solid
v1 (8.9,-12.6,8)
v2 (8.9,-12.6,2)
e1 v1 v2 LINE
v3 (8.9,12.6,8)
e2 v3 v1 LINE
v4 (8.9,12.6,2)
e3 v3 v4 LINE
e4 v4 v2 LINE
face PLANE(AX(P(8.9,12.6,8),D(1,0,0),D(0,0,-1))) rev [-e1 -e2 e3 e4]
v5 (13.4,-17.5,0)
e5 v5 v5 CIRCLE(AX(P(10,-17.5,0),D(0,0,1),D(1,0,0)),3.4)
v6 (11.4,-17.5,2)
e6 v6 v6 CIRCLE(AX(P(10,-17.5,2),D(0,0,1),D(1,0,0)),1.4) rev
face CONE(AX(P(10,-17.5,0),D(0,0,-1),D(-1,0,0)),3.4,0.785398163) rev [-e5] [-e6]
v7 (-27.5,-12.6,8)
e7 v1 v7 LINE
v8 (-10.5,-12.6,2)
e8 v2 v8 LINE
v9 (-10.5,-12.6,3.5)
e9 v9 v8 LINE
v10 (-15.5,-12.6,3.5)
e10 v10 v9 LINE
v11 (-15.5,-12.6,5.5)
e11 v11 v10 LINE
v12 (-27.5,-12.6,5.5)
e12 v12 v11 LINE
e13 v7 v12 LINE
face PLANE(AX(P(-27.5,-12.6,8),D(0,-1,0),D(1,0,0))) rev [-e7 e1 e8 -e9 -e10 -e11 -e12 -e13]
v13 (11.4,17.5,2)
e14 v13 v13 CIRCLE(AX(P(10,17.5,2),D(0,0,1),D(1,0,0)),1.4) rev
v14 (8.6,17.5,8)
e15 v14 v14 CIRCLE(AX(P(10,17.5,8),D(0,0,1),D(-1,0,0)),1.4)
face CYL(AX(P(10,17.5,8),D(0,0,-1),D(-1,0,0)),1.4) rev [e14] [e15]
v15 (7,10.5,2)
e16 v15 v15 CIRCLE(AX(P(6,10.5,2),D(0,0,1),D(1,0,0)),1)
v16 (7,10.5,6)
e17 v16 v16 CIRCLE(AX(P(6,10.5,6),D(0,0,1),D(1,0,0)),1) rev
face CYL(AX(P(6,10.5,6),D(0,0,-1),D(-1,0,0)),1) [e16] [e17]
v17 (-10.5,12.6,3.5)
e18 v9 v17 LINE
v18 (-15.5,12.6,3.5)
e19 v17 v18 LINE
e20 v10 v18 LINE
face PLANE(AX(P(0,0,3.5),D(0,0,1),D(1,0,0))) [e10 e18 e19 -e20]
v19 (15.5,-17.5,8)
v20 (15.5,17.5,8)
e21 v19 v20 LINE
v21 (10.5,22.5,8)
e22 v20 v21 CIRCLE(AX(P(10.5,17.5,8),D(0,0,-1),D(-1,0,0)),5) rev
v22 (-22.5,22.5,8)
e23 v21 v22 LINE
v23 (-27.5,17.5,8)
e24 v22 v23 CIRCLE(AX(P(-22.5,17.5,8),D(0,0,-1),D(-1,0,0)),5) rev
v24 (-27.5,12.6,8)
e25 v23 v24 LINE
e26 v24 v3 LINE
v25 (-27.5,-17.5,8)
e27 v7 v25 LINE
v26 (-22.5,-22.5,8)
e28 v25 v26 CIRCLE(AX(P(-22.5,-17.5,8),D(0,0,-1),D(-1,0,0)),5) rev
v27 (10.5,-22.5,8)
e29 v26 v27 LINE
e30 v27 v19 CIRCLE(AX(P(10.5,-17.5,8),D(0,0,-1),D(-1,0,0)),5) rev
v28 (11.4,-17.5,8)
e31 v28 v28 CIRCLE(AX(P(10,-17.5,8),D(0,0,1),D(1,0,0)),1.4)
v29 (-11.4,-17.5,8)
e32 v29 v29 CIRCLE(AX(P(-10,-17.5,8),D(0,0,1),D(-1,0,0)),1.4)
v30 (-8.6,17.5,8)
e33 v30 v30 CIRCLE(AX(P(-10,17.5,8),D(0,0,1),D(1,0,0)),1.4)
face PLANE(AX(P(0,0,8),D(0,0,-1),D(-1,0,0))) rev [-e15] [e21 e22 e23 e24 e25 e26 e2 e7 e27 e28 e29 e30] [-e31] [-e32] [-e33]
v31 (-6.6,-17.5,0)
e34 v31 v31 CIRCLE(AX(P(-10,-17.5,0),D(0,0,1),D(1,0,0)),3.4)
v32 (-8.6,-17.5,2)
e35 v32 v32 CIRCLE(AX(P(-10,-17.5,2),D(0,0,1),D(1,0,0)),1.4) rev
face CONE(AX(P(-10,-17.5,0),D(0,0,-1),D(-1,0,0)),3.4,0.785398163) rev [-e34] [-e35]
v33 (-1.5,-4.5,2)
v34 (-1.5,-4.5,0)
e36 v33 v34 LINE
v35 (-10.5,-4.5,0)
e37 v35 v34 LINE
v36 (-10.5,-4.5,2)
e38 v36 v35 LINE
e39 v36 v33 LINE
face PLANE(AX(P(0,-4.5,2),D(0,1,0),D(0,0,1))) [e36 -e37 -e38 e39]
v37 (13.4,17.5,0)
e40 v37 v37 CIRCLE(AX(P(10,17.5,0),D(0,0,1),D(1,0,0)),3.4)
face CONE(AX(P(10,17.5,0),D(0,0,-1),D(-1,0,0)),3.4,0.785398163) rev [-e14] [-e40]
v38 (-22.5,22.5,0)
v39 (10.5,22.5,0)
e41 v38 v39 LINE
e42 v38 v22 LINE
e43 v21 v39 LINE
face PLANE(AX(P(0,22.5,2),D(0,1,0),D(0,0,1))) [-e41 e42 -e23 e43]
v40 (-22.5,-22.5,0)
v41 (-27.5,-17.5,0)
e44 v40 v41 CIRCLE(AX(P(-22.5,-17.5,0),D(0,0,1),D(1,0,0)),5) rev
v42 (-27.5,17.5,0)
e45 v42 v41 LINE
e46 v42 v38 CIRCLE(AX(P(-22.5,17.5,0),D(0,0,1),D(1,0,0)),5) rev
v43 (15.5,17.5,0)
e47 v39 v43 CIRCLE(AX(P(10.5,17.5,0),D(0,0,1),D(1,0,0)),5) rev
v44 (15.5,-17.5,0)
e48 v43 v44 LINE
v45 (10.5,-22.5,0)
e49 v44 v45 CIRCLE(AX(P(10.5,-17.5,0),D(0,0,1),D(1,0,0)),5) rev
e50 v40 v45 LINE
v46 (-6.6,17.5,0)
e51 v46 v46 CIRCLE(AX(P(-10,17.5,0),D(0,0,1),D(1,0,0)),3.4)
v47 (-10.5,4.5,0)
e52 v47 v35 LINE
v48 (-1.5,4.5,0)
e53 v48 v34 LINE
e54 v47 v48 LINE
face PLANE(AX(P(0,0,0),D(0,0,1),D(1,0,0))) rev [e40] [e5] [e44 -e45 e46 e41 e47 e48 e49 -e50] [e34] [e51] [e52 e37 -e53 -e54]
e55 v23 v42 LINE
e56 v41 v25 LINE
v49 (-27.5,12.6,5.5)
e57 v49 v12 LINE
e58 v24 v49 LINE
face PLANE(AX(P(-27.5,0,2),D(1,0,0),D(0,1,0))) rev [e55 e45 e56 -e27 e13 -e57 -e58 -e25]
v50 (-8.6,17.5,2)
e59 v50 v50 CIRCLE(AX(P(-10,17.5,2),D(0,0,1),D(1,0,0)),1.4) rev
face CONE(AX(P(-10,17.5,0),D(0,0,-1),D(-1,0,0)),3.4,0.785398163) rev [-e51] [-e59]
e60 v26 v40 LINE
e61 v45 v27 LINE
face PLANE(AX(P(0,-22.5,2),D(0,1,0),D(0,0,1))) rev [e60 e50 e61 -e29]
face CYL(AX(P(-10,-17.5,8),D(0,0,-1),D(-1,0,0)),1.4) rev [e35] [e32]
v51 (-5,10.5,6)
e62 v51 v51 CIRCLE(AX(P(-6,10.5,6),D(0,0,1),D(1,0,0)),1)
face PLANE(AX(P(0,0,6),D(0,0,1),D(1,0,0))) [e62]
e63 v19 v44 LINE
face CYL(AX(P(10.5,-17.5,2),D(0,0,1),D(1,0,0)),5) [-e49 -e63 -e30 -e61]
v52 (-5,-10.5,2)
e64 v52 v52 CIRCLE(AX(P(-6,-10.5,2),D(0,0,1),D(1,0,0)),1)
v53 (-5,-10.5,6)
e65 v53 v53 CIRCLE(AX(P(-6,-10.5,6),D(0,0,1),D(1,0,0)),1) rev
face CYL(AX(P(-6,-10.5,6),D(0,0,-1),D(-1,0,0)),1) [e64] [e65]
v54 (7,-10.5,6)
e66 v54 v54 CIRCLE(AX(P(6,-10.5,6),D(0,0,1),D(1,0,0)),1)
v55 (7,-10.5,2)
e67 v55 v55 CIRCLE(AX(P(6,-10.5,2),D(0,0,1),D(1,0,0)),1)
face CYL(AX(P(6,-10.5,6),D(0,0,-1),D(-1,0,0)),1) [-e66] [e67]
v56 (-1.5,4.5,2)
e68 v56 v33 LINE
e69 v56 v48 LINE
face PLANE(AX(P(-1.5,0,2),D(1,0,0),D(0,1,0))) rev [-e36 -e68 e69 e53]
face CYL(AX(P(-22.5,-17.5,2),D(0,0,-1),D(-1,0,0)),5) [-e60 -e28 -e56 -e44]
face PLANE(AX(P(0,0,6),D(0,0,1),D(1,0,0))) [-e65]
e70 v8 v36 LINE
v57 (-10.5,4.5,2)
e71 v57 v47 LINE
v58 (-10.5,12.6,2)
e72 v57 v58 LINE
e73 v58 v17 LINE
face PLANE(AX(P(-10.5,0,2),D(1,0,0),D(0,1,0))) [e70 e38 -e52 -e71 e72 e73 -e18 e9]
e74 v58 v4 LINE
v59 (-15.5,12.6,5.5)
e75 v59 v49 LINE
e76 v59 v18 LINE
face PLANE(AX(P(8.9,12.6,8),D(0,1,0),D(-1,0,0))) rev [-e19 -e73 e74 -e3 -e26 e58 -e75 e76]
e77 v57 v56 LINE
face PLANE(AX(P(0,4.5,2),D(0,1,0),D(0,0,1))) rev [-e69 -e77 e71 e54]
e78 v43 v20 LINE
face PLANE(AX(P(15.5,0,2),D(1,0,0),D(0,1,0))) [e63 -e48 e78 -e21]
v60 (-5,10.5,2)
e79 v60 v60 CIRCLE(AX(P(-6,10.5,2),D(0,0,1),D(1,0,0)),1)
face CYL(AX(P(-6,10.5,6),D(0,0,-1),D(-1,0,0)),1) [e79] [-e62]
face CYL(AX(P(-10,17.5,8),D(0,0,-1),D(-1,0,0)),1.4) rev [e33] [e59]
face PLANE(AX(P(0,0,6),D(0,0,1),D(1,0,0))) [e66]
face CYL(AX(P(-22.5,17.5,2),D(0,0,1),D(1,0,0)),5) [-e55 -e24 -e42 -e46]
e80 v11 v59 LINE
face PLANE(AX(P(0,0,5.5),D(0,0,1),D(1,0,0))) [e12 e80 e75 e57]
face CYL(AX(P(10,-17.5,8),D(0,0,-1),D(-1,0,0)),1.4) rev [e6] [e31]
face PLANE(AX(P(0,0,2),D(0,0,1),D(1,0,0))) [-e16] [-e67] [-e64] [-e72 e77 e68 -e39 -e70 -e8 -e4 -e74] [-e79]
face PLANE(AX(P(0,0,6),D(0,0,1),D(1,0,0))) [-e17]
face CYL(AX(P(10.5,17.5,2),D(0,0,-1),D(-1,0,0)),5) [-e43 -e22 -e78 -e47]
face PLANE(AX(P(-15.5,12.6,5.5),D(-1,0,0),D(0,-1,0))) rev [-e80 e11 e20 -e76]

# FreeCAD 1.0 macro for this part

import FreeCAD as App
import Part
import Sketcher

V = App.Vector
Q = App.Units.Quantity


def edges_at(feature, points):
    """Names of the edges that pass closest to the given points."""
    edges = feature.Shape.Edges
    near = lambda p: min(range(len(edges)), key=lambda i: edges[i].distToShape(Part.Vertex(*p))[0])
    return sorted({f"Edge{near(p) + 1}" for p in points})

doc = App.newDocument("Part")
params = doc.addObject("Spreadsheet::Sheet", "Params")
for row, (alias, value) in enumerate([
    ("sketch1_diameter", "2 mm"),
    ("sketch1_width", "43 mm"),
    ("sketch1_width2", "9 mm"),
    ("sketch1_height", "45 mm"),
    ("pad1_length", "2 mm"),
    ("sketch2_width", "17 mm"),
    ("sketch2_height", "45 mm"),
    ("pad2_length", "1.5 mm"),
    ("sketch3_width", "43 mm"),
    ("sketch3_height", "45 mm"),
    ("sketch3_width2", "36.4 mm"),
    ("sketch3_height2", "9.9 mm"),
    ("pad3_length", "6 mm"),
    ("sketch4_diameter", "2 mm"),
    ("pad4_length", "6 mm"),
    ("sketch5_diameter", "2.8 mm"),
    ("chamfer_size", "2 mm"),
    ("sketch6_width", "12 mm"),
    ("sketch6_height", "25.2 mm"),
    ("pad5_length", "2 mm"),
    ("fillet_radius", "5 mm"),
], start=1):
    params.set(f"A{row}", alias)
    params.set(f"B{row}", "=" + value)
    params.setAlias(f"B{row}", alias)

body = doc.addObject("PartDesign::Body", "Body")

sketch1 = body.newObject("Sketcher::SketchObject", "Sketch")
sketch1.AttachmentSupport = (doc.getObject("XY_Plane"), [""])
sketch1.MapMode = "FlatFace"
sketch1.addGeometry([
    Part.LineSegment(V(-27.5, 22.5, 0), V(-27.5, -22.5, 0)),
    Part.LineSegment(V(-27.5, -22.5, 0), V(15.5, -22.5, 0)),
    Part.LineSegment(V(15.5, -22.5, 0), V(15.5, 22.5, 0)),
    Part.LineSegment(V(15.5, 22.5, 0), V(-27.5, 22.5, 0)),
    Part.Circle(V(-6, -10.5, 0), V(0, 0, 1), 1),
    Part.Circle(V(6, -10.5, 0), V(0, 0, 1), 1),
    Part.LineSegment(V(-1.5, -4.5, 0), V(-10.5, -4.5, 0)),
    Part.LineSegment(V(-10.5, -4.5, 0), V(-10.5, 4.5, 0)),
    Part.LineSegment(V(-10.5, 4.5, 0), V(-1.5, 4.5, 0)),
    Part.LineSegment(V(-1.5, 4.5, 0), V(-1.5, -4.5, 0)),
    Part.Circle(V(-6, 10.5, 0), V(0, 0, 1), 1),
    Part.Circle(V(6, 10.5, 0), V(0, 0, 1), 1),
], False)
sketch1.addConstraint([
    Sketcher.Constraint("Coincident", 0, 2, 1, 1),
    Sketcher.Constraint("Coincident", 1, 2, 2, 1),
    Sketcher.Constraint("Coincident", 2, 2, 3, 1),
    Sketcher.Constraint("Coincident", 3, 2, 0, 1),
    Sketcher.Constraint("Coincident", 6, 2, 7, 1),
    Sketcher.Constraint("Coincident", 7, 2, 8, 1),
    Sketcher.Constraint("Coincident", 8, 2, 9, 1),
    Sketcher.Constraint("Coincident", 9, 2, 6, 1),
    Sketcher.Constraint("Vertical", 0),
    Sketcher.Constraint("Horizontal", 1),
    Sketcher.Constraint("Vertical", 2),
    Sketcher.Constraint("Horizontal", 3),
    Sketcher.Constraint("Horizontal", 6),
    Sketcher.Constraint("Vertical", 7),
    Sketcher.Constraint("Horizontal", 8),
    Sketcher.Constraint("Vertical", 9),
    Sketcher.Constraint("Equal", 4, 5),
    Sketcher.Constraint("Equal", 5, 10),
    Sketcher.Constraint("Equal", 10, 11),
    Sketcher.Constraint("Symmetric", 5, 3, 10, 3, -1, 1),
    Sketcher.Constraint("Symmetric", 4, 3, 11, 3, -1, 1),
    Sketcher.Constraint("Symmetric", 4, 3, 5, 3, -2),
    Sketcher.Constraint("Equal", 8, 7),
    Sketcher.Constraint("Diameter", 4, Q("2 mm")),
    Sketcher.Constraint("DistanceX", 1, 1, 1, 2, Q("43 mm")),
    Sketcher.Constraint("DistanceX", 6, 2, 6, 1, Q("9 mm")),
    Sketcher.Constraint("DistanceY", 0, 2, 0, 1, Q("45 mm")),
    Sketcher.Constraint("DistanceX", 4, 3, -1, 1, Q("6 mm")),
    Sketcher.Constraint("DistanceY", 4, 3, 10, 3, Q("21 mm")),
    Sketcher.Constraint("DistanceY", 0, 2, 4, 3, Q("12 mm")),
    Sketcher.Constraint("DistanceY", 4, 3, 6, 2, Q("6 mm")),
    Sketcher.Constraint("DistanceX", 0, 2, 6, 2, Q("17 mm")),
    Sketcher.Constraint("DistanceX", 0, 2, -1, 1, Q("27.5 mm")),
])
sketch1.setExpression("Constraints[23]", "Params.sketch1_diameter")
sketch1.setExpression("Constraints[24]", "Params.sketch1_width")
sketch1.setExpression("Constraints[25]", "Params.sketch1_width2")
sketch1.setExpression("Constraints[26]", "Params.sketch1_height")
pad1 = body.newObject("PartDesign::Pad", "Pad")
pad1.Profile = sketch1
pad1.setExpression("Length", "Params.pad1_length")

sketch2 = body.newObject("Sketcher::SketchObject", "Sketch001")
sketch2.AttachmentSupport = (doc.getObject("XY_Plane"), [""])
sketch2.MapMode = "FlatFace"
sketch2.AttachmentOffset = App.Placement(V(0, 0, 2), App.Rotation())
sketch2.addGeometry([
    Part.LineSegment(V(-28, 22, 0), V(-28, -22, 0)),
    Part.LineSegment(V(-28, -22, 0), V(-10, -22, 0)),
    Part.LineSegment(V(-10, -22, 0), V(-10, 22, 0)),
    Part.LineSegment(V(-10, 22, 0), V(-28, 22, 0)),
], False)
sketch2.addConstraint([
    Sketcher.Constraint("Coincident", 0, 2, 1, 1),
    Sketcher.Constraint("Coincident", 1, 2, 2, 1),
    Sketcher.Constraint("Coincident", 2, 2, 3, 1),
    Sketcher.Constraint("Coincident", 3, 2, 0, 1),
    Sketcher.Constraint("Vertical", 0),
    Sketcher.Constraint("Horizontal", 1),
    Sketcher.Constraint("Vertical", 2),
    Sketcher.Constraint("Horizontal", 3),
    Sketcher.Constraint("DistanceX", 1, 1, 1, 2, Q("17 mm")),
    Sketcher.Constraint("DistanceY", 0, 2, 0, 1, Q("45 mm")),
    Sketcher.Constraint("DistanceX", 0, 2, -1, 1, Q("27.5 mm")),
    Sketcher.Constraint("DistanceY", 0, 2, -1, 1, Q("22.5 mm")),
])
sketch2.setExpression("Constraints[8]", "Params.sketch2_width")
sketch2.setExpression("Constraints[9]", "Params.sketch2_height")
pad2 = body.newObject("PartDesign::Pad", "Pad001")
pad2.Profile = sketch2
pad2.setExpression("Length", "Params.pad2_length")

sketch3 = body.newObject("Sketcher::SketchObject", "Sketch002")
sketch3.AttachmentSupport = (doc.getObject("XY_Plane"), [""])
sketch3.MapMode = "FlatFace"
sketch3.AttachmentOffset = App.Placement(V(0, 0, 2), App.Rotation())
sketch3.addGeometry([
    Part.LineSegment(V(16, -22, 0), V(16, 22, 0)),
    Part.LineSegment(V(16, 22, 0), V(-28, 22, 0)),
    Part.LineSegment(V(-28, 22, 0), V(-28, 13, 0)),
    Part.LineSegment(V(-28, 13, 0), V(9, 13, 0)),
    Part.LineSegment(V(9, 13, 0), V(9, -13, 0)),
    Part.LineSegment(V(9, -13, 0), V(-28, -13, 0)),
    Part.LineSegment(V(-28, -13, 0), V(-28, -22, 0)),
    Part.LineSegment(V(-28, -22, 0), V(16, -22, 0)),
], False)
sketch3.addConstraint([
    Sketcher.Constraint("Coincident", 0, 2, 1, 1),
    Sketcher.Constraint("Coincident", 1, 2, 2, 1),
    Sketcher.Constraint("Coincident", 2, 2, 3, 1),
    Sketcher.Constraint("Coincident", 3, 2, 4, 1),
    Sketcher.Constraint("Coincident", 4, 2, 5, 1),
    Sketcher.Constraint("Coincident", 5, 2, 6, 1),
    Sketcher.Constraint("Coincident", 6, 2, 7, 1),
    Sketcher.Constraint("Coincident", 7, 2, 0, 1),
    Sketcher.Constraint("Vertical", 0),
    Sketcher.Constraint("Horizontal", 1),
    Sketcher.Constraint("Vertical", 2),
    Sketcher.Constraint("Horizontal", 3),
    Sketcher.Constraint("Vertical", 4),
    Sketcher.Constraint("Horizontal", 5),
    Sketcher.Constraint("Vertical", 6),
    Sketcher.Constraint("Horizontal", 7),
    Sketcher.Constraint("Symmetric", 2, 2, 5, 2, -1),
    Sketcher.Constraint("Equal", 2, 6),
    Sketcher.Constraint("DistanceX", 1, 2, 1, 1, Q("43 mm")),
    Sketcher.Constraint("DistanceY", 0, 1, 0, 2, Q("45 mm")),
    Sketcher.Constraint("DistanceX", 3, 1, 3, 2, Q("36.4 mm")),
    Sketcher.Constraint("DistanceY", 2, 2, 2, 1, Q("9.9 mm")),
    Sketcher.Constraint("DistanceX", -1, 1, 0, 2, Q("15.5 mm")),
])
sketch3.setExpression("Constraints[18]", "Params.sketch3_width")
sketch3.setExpression("Constraints[19]", "Params.sketch3_height")
sketch3.setExpression("Constraints[20]", "Params.sketch3_width2")
sketch3.setExpression("Constraints[21]", "Params.sketch3_height2")
pad3 = body.newObject("PartDesign::Pad", "Pad002")
pad3.Profile = sketch3
pad3.setExpression("Length", "Params.pad3_length")

sketch4 = body.newObject("Sketcher::SketchObject", "Sketch003")
sketch4.AttachmentSupport = (doc.getObject("XY_Plane"), [""])
sketch4.MapMode = "FlatFace"
sketch4.addGeometry([
    Part.Circle(V(-6, 10.5, 0), V(0, 0, 1), 1),
    Part.Circle(V(6, 10.5, 0), V(0, 0, 1), 1),
    Part.Circle(V(-6, -10.5, 0), V(0, 0, 1), 1),
    Part.Circle(V(6, -10.5, 0), V(0, 0, 1), 1),
], False)
sketch4.addConstraint([
    Sketcher.Constraint("Equal", 0, 1),
    Sketcher.Constraint("Equal", 1, 2),
    Sketcher.Constraint("Equal", 2, 3),
    Sketcher.Constraint("Symmetric", 1, 3, 2, 3, -1, 1),
    Sketcher.Constraint("Symmetric", 0, 3, 3, 3, -1, 1),
    Sketcher.Constraint("Symmetric", 0, 3, 1, 3, -2),
    Sketcher.Constraint("Diameter", 0, Q("2 mm")),
    Sketcher.Constraint("DistanceX", 0, 3, -1, 1, Q("6 mm")),
    Sketcher.Constraint("DistanceY", 2, 3, 0, 3, Q("21 mm")),
])
sketch4.setExpression("Constraints[6]", "Params.sketch4_diameter")
pad4 = body.newObject("PartDesign::Pad", "Pad003")
pad4.Profile = sketch4
pad4.setExpression("Length", "Params.pad4_length")

sketch5 = body.newObject("Sketcher::SketchObject", "Sketch004")
sketch5.AttachmentSupport = (doc.getObject("XY_Plane"), [""])
sketch5.MapMode = "FlatFace"
sketch5.addGeometry([
    Part.Circle(V(-10, 17.5, 0), V(0, 0, 1), 1.4),
    Part.Circle(V(10, 17.5, 0), V(0, 0, 1), 1.4),
    Part.Circle(V(10, -17.5, 0), V(0, 0, 1), 1.4),
    Part.Circle(V(-10, -17.5, 0), V(0, 0, 1), 1.4),
], False)
sketch5.addConstraint([
    Sketcher.Constraint("Equal", 0, 1),
    Sketcher.Constraint("Equal", 1, 2),
    Sketcher.Constraint("Equal", 2, 3),
    Sketcher.Constraint("Symmetric", 0, 3, 2, 3, -1, 1),
    Sketcher.Constraint("Symmetric", 1, 3, 3, 3, -1, 1),
    Sketcher.Constraint("Symmetric", 0, 3, 1, 3, -2),
    Sketcher.Constraint("Diameter", 0, Q("2.8 mm")),
    Sketcher.Constraint("DistanceX", 0, 3, -1, 1, Q("10 mm")),
    Sketcher.Constraint("DistanceY", 2, 3, 1, 3, Q("35 mm")),
])
sketch5.setExpression("Constraints[6]", "Params.sketch5_diameter")
pocket1 = body.newObject("PartDesign::Pocket", "Pocket")
pocket1.Profile = sketch5
pocket1.Type = "ThroughAll"
pocket1.Reversed = True
doc.recompute()

chamfer = body.newObject("PartDesign::Chamfer", "Chamfer")
chamfer.Base = (pocket1, edges_at(pocket1, [
    (-8.6, -17.5, 0),
    (8.6, -17.5, 0),
    (11.4, 17.5, 0),
    (-11.4, 17.5, 0),
]))
chamfer.setExpression("Size", "Params.chamfer_size")

sketch6 = body.newObject("Sketcher::SketchObject", "Sketch005")
sketch6.AttachmentSupport = (doc.getObject("XY_Plane"), [""])
sketch6.MapMode = "FlatFace"
sketch6.AttachmentOffset = App.Placement(V(0, 0, 3.5), App.Rotation())
sketch6.addGeometry([
    Part.LineSegment(V(-28, 13, 0), V(-28, -13, 0)),
    Part.LineSegment(V(-28, -13, 0), V(-16, -13, 0)),
    Part.LineSegment(V(-16, -13, 0), V(-16, 13, 0)),
    Part.LineSegment(V(-16, 13, 0), V(-28, 13, 0)),
], False)
sketch6.addConstraint([
    Sketcher.Constraint("Coincident", 0, 2, 1, 1),
    Sketcher.Constraint("Coincident", 1, 2, 2, 1),
    Sketcher.Constraint("Coincident", 2, 2, 3, 1),
    Sketcher.Constraint("Coincident", 3, 2, 0, 1),
    Sketcher.Constraint("Vertical", 0),
    Sketcher.Constraint("Horizontal", 1),
    Sketcher.Constraint("Vertical", 2),
    Sketcher.Constraint("Horizontal", 3),
    Sketcher.Constraint("DistanceX", 1, 1, 1, 2, Q("12 mm")),
    Sketcher.Constraint("DistanceY", 0, 2, 0, 1, Q("25.2 mm")),
    Sketcher.Constraint("DistanceX", 0, 2, -1, 1, Q("27.5 mm")),
    Sketcher.Constraint("DistanceY", 0, 2, -1, 1, Q("12.6 mm")),
])
sketch6.setExpression("Constraints[8]", "Params.sketch6_width")
sketch6.setExpression("Constraints[9]", "Params.sketch6_height")
pad5 = body.newObject("PartDesign::Pad", "Pad004")
pad5.Profile = sketch6
pad5.setExpression("Length", "Params.pad5_length")
doc.recompute()

fillet = body.newObject("PartDesign::Fillet", "Fillet")
fillet.Base = (pad5, edges_at(pad5, [
    (-27.5, 22.5, 4),
    (15.5, 22.5, 4),
    (15.5, -22.5, 4),
    (-27.5, -22.5, 4),
]))
fillet.setExpression("Radius", "Params.fillet_radius")

doc.recompute()
